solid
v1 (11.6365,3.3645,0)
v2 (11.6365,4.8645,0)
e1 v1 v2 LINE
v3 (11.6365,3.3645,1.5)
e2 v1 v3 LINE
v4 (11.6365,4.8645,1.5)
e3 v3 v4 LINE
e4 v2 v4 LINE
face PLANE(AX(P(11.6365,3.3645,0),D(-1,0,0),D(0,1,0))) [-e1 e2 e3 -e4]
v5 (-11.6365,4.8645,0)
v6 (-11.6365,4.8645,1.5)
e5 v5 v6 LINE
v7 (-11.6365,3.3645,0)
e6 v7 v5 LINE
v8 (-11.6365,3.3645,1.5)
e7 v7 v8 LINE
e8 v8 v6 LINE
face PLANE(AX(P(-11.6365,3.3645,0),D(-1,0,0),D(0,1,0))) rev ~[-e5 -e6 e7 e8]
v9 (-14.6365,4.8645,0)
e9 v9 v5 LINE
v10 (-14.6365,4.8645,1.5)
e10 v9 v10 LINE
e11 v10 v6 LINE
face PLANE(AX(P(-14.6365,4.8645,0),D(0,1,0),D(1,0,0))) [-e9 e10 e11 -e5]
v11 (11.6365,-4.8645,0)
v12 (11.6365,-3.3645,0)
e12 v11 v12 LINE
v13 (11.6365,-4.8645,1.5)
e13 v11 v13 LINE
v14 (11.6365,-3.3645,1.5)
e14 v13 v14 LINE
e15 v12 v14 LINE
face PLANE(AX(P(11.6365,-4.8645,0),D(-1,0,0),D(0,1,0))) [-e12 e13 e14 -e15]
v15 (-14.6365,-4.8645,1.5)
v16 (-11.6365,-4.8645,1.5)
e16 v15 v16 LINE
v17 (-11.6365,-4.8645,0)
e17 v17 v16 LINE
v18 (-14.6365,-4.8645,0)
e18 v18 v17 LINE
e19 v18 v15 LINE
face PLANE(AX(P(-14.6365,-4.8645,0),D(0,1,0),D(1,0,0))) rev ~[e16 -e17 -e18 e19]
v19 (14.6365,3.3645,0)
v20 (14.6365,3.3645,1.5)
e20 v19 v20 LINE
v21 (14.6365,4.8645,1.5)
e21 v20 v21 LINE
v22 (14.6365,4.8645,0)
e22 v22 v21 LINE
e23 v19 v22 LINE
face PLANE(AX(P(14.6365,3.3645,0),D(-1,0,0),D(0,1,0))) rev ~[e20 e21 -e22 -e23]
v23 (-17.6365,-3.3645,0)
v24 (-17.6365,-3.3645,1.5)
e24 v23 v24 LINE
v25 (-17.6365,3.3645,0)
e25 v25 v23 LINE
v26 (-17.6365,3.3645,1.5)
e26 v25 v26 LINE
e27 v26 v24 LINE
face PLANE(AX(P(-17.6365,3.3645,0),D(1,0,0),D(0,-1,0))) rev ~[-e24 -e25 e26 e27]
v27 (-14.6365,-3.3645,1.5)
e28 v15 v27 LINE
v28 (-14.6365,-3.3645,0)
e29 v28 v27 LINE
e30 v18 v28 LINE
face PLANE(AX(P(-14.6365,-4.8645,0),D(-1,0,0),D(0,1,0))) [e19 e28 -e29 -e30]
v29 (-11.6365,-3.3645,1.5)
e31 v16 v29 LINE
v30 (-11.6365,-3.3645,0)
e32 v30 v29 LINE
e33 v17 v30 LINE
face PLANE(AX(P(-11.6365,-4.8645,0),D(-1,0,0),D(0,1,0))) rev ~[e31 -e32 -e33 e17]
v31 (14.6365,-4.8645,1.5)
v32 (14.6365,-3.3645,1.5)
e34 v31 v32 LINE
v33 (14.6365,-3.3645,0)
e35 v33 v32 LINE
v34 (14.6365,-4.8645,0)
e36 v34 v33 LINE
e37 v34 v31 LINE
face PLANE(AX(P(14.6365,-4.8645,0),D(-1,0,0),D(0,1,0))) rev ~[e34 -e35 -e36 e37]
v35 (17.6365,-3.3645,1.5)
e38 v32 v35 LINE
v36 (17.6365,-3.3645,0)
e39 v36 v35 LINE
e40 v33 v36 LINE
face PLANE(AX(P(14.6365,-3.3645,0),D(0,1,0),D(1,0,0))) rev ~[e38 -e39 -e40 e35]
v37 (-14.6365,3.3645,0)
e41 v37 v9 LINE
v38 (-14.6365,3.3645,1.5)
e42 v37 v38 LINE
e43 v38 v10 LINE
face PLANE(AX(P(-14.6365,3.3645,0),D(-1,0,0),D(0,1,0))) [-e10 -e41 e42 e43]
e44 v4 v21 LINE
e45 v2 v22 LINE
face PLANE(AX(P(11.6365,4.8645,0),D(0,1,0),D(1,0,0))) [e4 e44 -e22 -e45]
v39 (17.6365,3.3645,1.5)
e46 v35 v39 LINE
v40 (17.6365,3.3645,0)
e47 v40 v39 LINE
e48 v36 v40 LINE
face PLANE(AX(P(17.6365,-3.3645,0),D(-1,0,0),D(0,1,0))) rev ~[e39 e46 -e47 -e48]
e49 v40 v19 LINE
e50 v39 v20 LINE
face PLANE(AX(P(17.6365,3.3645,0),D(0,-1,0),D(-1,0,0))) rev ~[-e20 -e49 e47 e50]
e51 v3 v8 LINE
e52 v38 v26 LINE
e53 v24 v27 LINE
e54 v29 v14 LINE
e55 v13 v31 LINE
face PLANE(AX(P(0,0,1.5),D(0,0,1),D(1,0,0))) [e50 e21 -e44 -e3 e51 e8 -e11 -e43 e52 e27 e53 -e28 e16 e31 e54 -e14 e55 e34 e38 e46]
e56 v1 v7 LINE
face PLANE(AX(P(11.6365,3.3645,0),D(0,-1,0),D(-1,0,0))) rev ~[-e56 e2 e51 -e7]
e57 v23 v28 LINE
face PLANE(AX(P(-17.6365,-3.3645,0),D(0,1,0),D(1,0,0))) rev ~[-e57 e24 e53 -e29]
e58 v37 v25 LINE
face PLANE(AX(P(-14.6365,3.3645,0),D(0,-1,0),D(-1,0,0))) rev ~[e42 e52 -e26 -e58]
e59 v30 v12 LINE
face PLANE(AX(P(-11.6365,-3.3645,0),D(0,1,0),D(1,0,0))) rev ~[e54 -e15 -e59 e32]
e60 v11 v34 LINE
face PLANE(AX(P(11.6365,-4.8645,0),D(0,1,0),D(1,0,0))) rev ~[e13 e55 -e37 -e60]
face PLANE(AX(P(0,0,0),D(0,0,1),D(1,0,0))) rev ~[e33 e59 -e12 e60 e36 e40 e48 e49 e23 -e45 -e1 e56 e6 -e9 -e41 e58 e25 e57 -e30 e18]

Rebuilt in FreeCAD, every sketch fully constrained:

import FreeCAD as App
import Part
import Sketcher
from FreeCAD import Vector
Q = App.Units.Quantity

doc = App.newDocument("Part")
body = doc.addObject("PartDesign::Body", "Body")

# Sketch on XY plane
sketch1 = doc.addObject("Sketcher::SketchObject", "Sketch")
body.addObject(sketch1)
sketch1.AttachmentSupport = (doc.XY_Plane, [""])
sketch1.MapMode = "FlatFace"
sketch1.addGeometry([
    Part.LineSegment(Vector(-17.6, 3.4, 0), Vector(-17.6, -3.4, 0)),  # 0
    Part.LineSegment(Vector(-17.6, -3.4, 0), Vector(-14.6, -3.4, 0)),  # 1
    Part.LineSegment(Vector(-14.6, -3.4, 0), Vector(-14.6, -4.9, 0)),  # 2
    Part.LineSegment(Vector(-14.6, -4.9, 0), Vector(-11.6, -4.9, 0)),  # 3
    Part.LineSegment(Vector(-11.6, -4.9, 0), Vector(-11.6, -3.4, 0)),  # 4
    Part.LineSegment(Vector(-11.6, -3.4, 0), Vector(11.6, -3.4, 0)),  # 5
    Part.LineSegment(Vector(11.6, -3.4, 0), Vector(11.6, -4.9, 0)),  # 6
    Part.LineSegment(Vector(11.6, -4.9, 0), Vector(14.6, -4.9, 0)),  # 7
    Part.LineSegment(Vector(14.6, -4.9, 0), Vector(14.6, -3.4, 0)),  # 8
    Part.LineSegment(Vector(14.6, -3.4, 0), Vector(17.6, -3.4, 0)),  # 9
    Part.LineSegment(Vector(17.6, -3.4, 0), Vector(17.6, 3.4, 0)),  # 10
    Part.LineSegment(Vector(17.6, 3.4, 0), Vector(14.6, 3.4, 0)),  # 11
    Part.LineSegment(Vector(14.6, 3.4, 0), Vector(14.6, 4.9, 0)),  # 12
    Part.LineSegment(Vector(14.6, 4.9, 0), Vector(11.6, 4.9, 0)),  # 13
    Part.LineSegment(Vector(11.6, 4.9, 0), Vector(11.6, 3.4, 0)),  # 14
    Part.LineSegment(Vector(11.6, 3.4, 0), Vector(-11.6, 3.4, 0)),  # 15
    Part.LineSegment(Vector(-11.6, 3.4, 0), Vector(-11.6, 4.9, 0)),  # 16
    Part.LineSegment(Vector(-11.6, 4.9, 0), Vector(-14.6, 4.9, 0)),  # 17
    Part.LineSegment(Vector(-14.6, 4.9, 0), Vector(-14.6, 3.4, 0)),  # 18
    Part.LineSegment(Vector(-14.6, 3.4, 0), Vector(-17.6, 3.4, 0)),  # 19
], False)
sketch1.addConstraint([
    Sketcher.Constraint("Coincident", 0, 2, 1, 1),
    Sketcher.Constraint("Coincident", 1, 2, 2, 1),
    Sketcher.Constraint("Coincident", 2, 2, 3, 1),
    Sketcher.Constraint("Coincident", 3, 2, 4, 1),
    Sketcher.Constraint("Coincident", 4, 2, 5, 1),
    Sketcher.Constraint("Coincident", 5, 2, 6, 1),
    Sketcher.Constraint("Coincident", 6, 2, 7, 1),
    Sketcher.Constraint("Coincident", 7, 2, 8, 1),
    Sketcher.Constraint("Coincident", 8, 2, 9, 1),
    Sketcher.Constraint("Coincident", 9, 2, 10, 1),
    Sketcher.Constraint("Coincident", 10, 2, 11, 1),
    Sketcher.Constraint("Coincident", 11, 2, 12, 1),
    Sketcher.Constraint("Coincident", 12, 2, 13, 1),
    Sketcher.Constraint("Coincident", 13, 2, 14, 1),
    Sketcher.Constraint("Coincident", 14, 2, 15, 1),
    Sketcher.Constraint("Coincident", 15, 2, 16, 1),
    Sketcher.Constraint("Coincident", 16, 2, 17, 1),
    Sketcher.Constraint("Coincident", 17, 2, 18, 1),
    Sketcher.Constraint("Coincident", 18, 2, 19, 1),
    Sketcher.Constraint("Coincident", 19, 2, 0, 1),
    Sketcher.Constraint("Vertical", 0),
    Sketcher.Constraint("Horizontal", 1),
    Sketcher.Constraint("Vertical", 2),
    Sketcher.Constraint("Horizontal", 3),
    Sketcher.Constraint("Vertical", 4),
    Sketcher.Constraint("Horizontal", 5),
    Sketcher.Constraint("Vertical", 6),
    Sketcher.Constraint("Horizontal", 7),
    Sketcher.Constraint("Vertical", 8),
    Sketcher.Constraint("Horizontal", 9),
    Sketcher.Constraint("Vertical", 10),
    Sketcher.Constraint("Horizontal", 11),
    Sketcher.Constraint("Vertical", 12),
    Sketcher.Constraint("Horizontal", 13),
    Sketcher.Constraint("Vertical", 14),
    Sketcher.Constraint("Horizontal", 15),
    Sketcher.Constraint("Vertical", 16),
    Sketcher.Constraint("Horizontal", 17),
    Sketcher.Constraint("Vertical", 18),
    Sketcher.Constraint("Horizontal", 19),
    Sketcher.Constraint("Symmetric", 0, 2, 10, 2, -1, 1),
    Sketcher.Constraint("Symmetric", 2, 2, 12, 2, -1, 1),
    Sketcher.Constraint("Symmetric", 4, 2, 14, 2, -1, 1),
    Sketcher.Constraint("Symmetric", 6, 2, 16, 2, -1, 1),
    Sketcher.Constraint("Symmetric", 8, 2, 18, 2, -1, 1),
    Sketcher.Constraint("Symmetric", 3, 2, 6, 2, -2),
    Sketcher.Constraint("Symmetric", 1, 2, 8, 2, -2),
    Sketcher.Constraint("Horizontal", 1, 2, 4, 2),
    Sketcher.Constraint("Equal", 1, 3),
    Sketcher.Constraint("DistanceX", 1, 1, 1, 2, Q("3 mm")),
    Sketcher.Constraint("DistanceY", 2, 2, 2, 1, Q("1.5 mm")),
    Sketcher.Constraint("DistanceX", 5, 1, 5, 2, Q("23.273 mm")),
    Sketcher.Constraint("DistanceY", 0, 2, 0, 1, Q("6.729 mm")),
])
pad1 = doc.addObject("PartDesign::Pad", "Pad")
body.addObject(pad1)
pad1.Profile = sketch1
pad1.Length = 1.5

doc.recompute()
